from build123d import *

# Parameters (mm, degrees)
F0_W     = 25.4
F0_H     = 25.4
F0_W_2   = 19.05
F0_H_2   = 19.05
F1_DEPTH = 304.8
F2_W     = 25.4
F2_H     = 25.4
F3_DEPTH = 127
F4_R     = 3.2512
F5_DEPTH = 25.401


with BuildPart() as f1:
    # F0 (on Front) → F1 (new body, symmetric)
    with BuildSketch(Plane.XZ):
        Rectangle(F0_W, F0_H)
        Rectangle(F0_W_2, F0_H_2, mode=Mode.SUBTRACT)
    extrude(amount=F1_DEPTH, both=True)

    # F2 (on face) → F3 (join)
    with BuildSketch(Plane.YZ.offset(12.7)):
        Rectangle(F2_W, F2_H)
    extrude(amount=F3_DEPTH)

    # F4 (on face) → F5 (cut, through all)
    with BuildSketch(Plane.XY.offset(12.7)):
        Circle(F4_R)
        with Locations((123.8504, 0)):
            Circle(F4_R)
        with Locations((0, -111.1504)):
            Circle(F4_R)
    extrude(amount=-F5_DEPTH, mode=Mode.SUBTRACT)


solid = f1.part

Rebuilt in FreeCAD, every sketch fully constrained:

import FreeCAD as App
import Part
import Sketcher

V = App.Vector
Q = App.Units.Quantity


def add_polygon(sketch, points):
    """Adds a closed chain of lines whose ends are joined by coincident constraints."""
    first, n = sketch.GeometryCount, len(points)
    for a, b in zip(points, points[1:] + points[:1]):
        sketch.addGeometry(Part.LineSegment(App.Vector(*a, 0), App.Vector(*b, 0)), False)
    for i in range(n):
        sketch.addConstraint(Sketcher.Constraint("Coincident", first + i, 2, first + (i + 1) % n, 1))

doc = App.newDocument("Part")
body = doc.addObject("PartDesign::Body", "Body")

# Sketch on XZ plane
sketch1 = body.newObject("Sketcher::SketchObject", "Sketch")
sketch1.AttachmentSupport = (doc.getObject("XZ_Plane"), [""])
sketch1.MapMode = "FlatFace"
add_polygon(sketch1, [(-12.7, 12.7), (-12.7, -12.7), (12.7, -12.7), (12.7, 12.7)])  # lines 0-3
add_polygon(sketch1, [(9.525, -9.525), (-9.525, -9.525), (-9.525, 9.525), (9.525, 9.525)])  # lines 4-7
sketch1.addConstraint([
    Sketcher.Constraint("Vertical", 0),
    Sketcher.Constraint("Horizontal", 1),
    Sketcher.Constraint("Vertical", 2),
    Sketcher.Constraint("Horizontal", 3),
    Sketcher.Constraint("Horizontal", 4),
    Sketcher.Constraint("Vertical", 5),
    Sketcher.Constraint("Horizontal", 6),
    Sketcher.Constraint("Vertical", 7),
    Sketcher.Constraint("Symmetric", 0, 2, 2, 2, -1, 1),
    Sketcher.Constraint("Symmetric", 4, 2, 6, 2, -1, 1),
    Sketcher.Constraint("Equal", 3, 0),
    Sketcher.Constraint("Equal", 6, 5),
    Sketcher.Constraint("DistanceX", 1, 1, 1, 2, Q("1 in")),
    Sketcher.Constraint("DistanceX", 4, 2, 4, 1, Q("0.75 in")),
])
pad1 = body.newObject("PartDesign::Pad", "Pad")
pad1.Profile = sketch1
pad1.Length = Q("24 in")
pad1.Midplane = True

# Sketch on YZ plane
sketch2 = body.newObject("Sketcher::SketchObject", "Sketch001")
sketch2.AttachmentSupport = (doc.getObject("YZ_Plane"), [""])
sketch2.MapMode = "FlatFace"
sketch2.AttachmentOffset = App.Placement(V(0, 0, 0.5 * 25.4), App.Rotation())
add_polygon(sketch2, [(-12.7, 12.7), (-12.7, -12.7), (12.7, -12.7), (12.7, 12.7)])  # lines 0-3
sketch2.addConstraint([
    Sketcher.Constraint("Vertical", 0),
    Sketcher.Constraint("Horizontal", 1),
    Sketcher.Constraint("Vertical", 2),
    Sketcher.Constraint("Horizontal", 3),
    Sketcher.Constraint("Symmetric", 0, 2, 2, 2, -1, 1),
    Sketcher.Constraint("Equal", 3, 0),
    Sketcher.Constraint("DistanceX", 1, 1, 1, 2, Q("1 in")),
])
pad2 = body.newObject("PartDesign::Pad", "Pad001")
pad2.Profile = sketch2
pad2.Length = Q("5 in")

# Sketch on XY plane
sketch3 = body.newObject("Sketcher::SketchObject", "Sketch002")
sketch3.AttachmentSupport = (doc.getObject("XY_Plane"), [""])
sketch3.MapMode = "FlatFace"
sketch3.AttachmentOffset = App.Placement(V(0, 0, 0.5 * 25.4), App.Rotation())
sketch3.addGeometry([
    Part.Circle(V(0, 0, 0), V(0, 0, 1), 3.2512),
    Part.Circle(V(123.8504, 0, 0), V(0, 0, 1), 3.2512),
    Part.Circle(V(0, -111.1504, 0), V(0, 0, 1), 3.2512),
], False)
sketch3.addConstraint([
    Sketcher.Constraint("Coincident", 0, 3, -1, 1),
    Sketcher.Constraint("Equal", 0, 1),
    Sketcher.Constraint("Equal", 1, 2),
    Sketcher.Constraint("PointOnObject", 1, 3, -1),
    Sketcher.Constraint("PointOnObject", 2, 3, -2),
    Sketcher.Constraint("Diameter", 0, Q("0.256 in")),
    Sketcher.Constraint("DistanceX", -1, 1, 1, 3, Q("4.876 in")),
    Sketcher.Constraint("DistanceY", 2, 3, -1, 1, Q("4.376 in")),
])
pocket1 = body.newObject("PartDesign::Pocket", "Pocket")
pocket1.Profile = sketch3
pocket1.Type = "ThroughAll"

doc.recompute()
